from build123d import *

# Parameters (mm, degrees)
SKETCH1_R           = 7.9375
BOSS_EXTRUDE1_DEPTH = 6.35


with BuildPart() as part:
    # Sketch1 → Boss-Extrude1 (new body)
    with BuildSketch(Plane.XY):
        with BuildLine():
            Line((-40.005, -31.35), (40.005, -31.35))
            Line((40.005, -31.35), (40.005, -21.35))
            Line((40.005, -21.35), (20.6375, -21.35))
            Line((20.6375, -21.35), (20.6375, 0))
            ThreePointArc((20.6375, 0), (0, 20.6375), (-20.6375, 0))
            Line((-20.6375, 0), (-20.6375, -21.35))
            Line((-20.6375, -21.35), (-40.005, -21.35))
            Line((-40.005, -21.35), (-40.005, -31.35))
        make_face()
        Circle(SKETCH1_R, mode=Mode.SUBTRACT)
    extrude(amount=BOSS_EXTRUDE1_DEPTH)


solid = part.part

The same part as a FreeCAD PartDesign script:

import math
import FreeCAD as App
import Part
import Sketcher
Q = App.Units.Quantity

doc = App.newDocument("Part")
params = doc.addObject("Spreadsheet::Sheet", "Params")
for row, (alias, value) in enumerate([
    ("sketch1_diameter", "0.625 in"),
    ("sketch1_radius", "0.8125 in"),
    ("sketch1_width", "3.15 in"),
    ("pad1_length", "0.25 in"),
], start=1):
    params.set(f"A{row}", alias)
    params.set(f"B{row}", "=" + value)
    params.setAlias(f"B{row}", alias)

body = doc.addObject("PartDesign::Body", "Body")

# Sketch on XY plane
sketch1 = doc.addObject("Sketcher::SketchObject", "Sketch")
body.addObject(sketch1)
sketch1.AttachmentSupport = (doc.XY_Plane, [""])
sketch1.MapMode = "FlatFace"
sketch1.addGeometry(Part.LineSegment(App.Vector(-40, -31, 0), App.Vector(40, -31, 0)), False)
sketch1.addGeometry(Part.LineSegment(App.Vector(40, -31, 0), App.Vector(40, -21, 0)), False)
sketch1.addGeometry(Part.LineSegment(App.Vector(40, -21, 0), App.Vector(21, -21, 0)), False)
sketch1.addGeometry(Part.LineSegment(App.Vector(21, -21, 0), App.Vector(21, 0, 0)), False)
sketch1.addGeometry(Part.ArcOfCircle(Part.Circle(App.Vector(0, 0, 0), App.Vector(0, 0, 1), 21), math.radians(0), math.radians(180)), False)
sketch1.addGeometry(Part.LineSegment(App.Vector(-21, 0, 0), App.Vector(-21, -21, 0)), False)
sketch1.addGeometry(Part.LineSegment(App.Vector(-21, -21, 0), App.Vector(-40, -21, 0)), False)
sketch1.addGeometry(Part.LineSegment(App.Vector(-40, -21, 0), App.Vector(-40, -31, 0)), False)
sketch1.addGeometry(Part.Circle(App.Vector(0, 0, 0), App.Vector(0, 0, 1), 8), False)
sketch1.addConstraint(Sketcher.Constraint("Coincident", 0, 2, 1, 1))
sketch1.addConstraint(Sketcher.Constraint("Coincident", 1, 2, 2, 1))
sketch1.addConstraint(Sketcher.Constraint("Coincident", 2, 2, 3, 1))
sketch1.addConstraint(Sketcher.Constraint("Tangent", 3, 2, 4, 1))
sketch1.addConstraint(Sketcher.Constraint("Tangent", 4, 2, 5, 1))
sketch1.addConstraint(Sketcher.Constraint("Coincident", 5, 2, 6, 1))
sketch1.addConstraint(Sketcher.Constraint("Coincident", 6, 2, 7, 1))
sketch1.addConstraint(Sketcher.Constraint("Coincident", 7, 2, 0, 1))
sketch1.addConstraint(Sketcher.Constraint("Horizontal", 0))
sketch1.addConstraint(Sketcher.Constraint("Vertical", 1))
sketch1.addConstraint(Sketcher.Constraint("Horizontal", 2))
sketch1.addConstraint(Sketcher.Constraint("Vertical", 3))
sketch1.addConstraint(Sketcher.Constraint("Vertical", 5))
sketch1.addConstraint(Sketcher.Constraint("Horizontal", 6))
sketch1.addConstraint(Sketcher.Constraint("Vertical", 7))
sketch1.addConstraint(Sketcher.Constraint("Coincident", 4, 3, -1, 1))
sketch1.addConstraint(Sketcher.Constraint("Coincident", 8, 3, -1, 1))
sketch1.addConstraint(Sketcher.Constraint("Symmetric", 1, 2, 6, 2, -2))
sketch1.addConstraint(Sketcher.Constraint("Diameter", 8, Q("0.625 in")))
sketch1.addConstraint(Sketcher.Constraint("Radius", 4, Q("0.8125 in")))
sketch1.addConstraint(Sketcher.Constraint("DistanceX", 0, 1, 0, 2, Q("3.15 in")))
sketch1.addConstraint(Sketcher.Constraint("DistanceY", 1, 1, 1, 2, 10.0))
sketch1.addConstraint(Sketcher.Constraint("DistanceY", 3, 1, 3, 2, 21.35))
sketch1.setExpression("Constraints[18]", "Params.sketch1_diameter")
sketch1.setExpression("Constraints[19]", "Params.sketch1_radius")
sketch1.setExpression("Constraints[20]", "Params.sketch1_width")
pad1 = doc.addObject("PartDesign::Pad", "Pad")
body.addObject(pad1)
pad1.Profile = sketch1
pad1.setExpression("Length", "Params.pad1_length")

doc.recompute()
